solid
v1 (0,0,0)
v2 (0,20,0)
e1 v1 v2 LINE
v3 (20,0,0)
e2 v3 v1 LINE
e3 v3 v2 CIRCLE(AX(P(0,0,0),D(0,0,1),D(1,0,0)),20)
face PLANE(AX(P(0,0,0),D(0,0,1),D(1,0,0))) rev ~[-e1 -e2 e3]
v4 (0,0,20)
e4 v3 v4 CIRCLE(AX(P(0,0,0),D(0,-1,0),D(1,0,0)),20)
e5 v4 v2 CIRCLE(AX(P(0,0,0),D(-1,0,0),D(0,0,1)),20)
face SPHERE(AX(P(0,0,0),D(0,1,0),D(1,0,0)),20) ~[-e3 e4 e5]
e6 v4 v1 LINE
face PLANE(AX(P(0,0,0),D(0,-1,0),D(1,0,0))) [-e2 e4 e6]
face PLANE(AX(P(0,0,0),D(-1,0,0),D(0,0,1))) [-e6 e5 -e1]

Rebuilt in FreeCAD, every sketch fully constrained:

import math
import FreeCAD as App
import Part
import Sketcher

V = App.Vector

doc = App.newDocument("Part")
body = doc.addObject("PartDesign::Body", "Body")

# Sketch on XY plane
sketch1 = body.newObject("Sketcher::SketchObject", "Sketch")
sketch1.AttachmentSupport = (doc.getObject("XY_Plane"), [""])
sketch1.MapMode = "FlatFace"
sketch1.addGeometry([
    Part.LineSegment(V(0, 0, 0), V(20, 0, 0)),
    Part.ArcOfCircle(Part.Circle(V(0, 0, 0), V(0, 0, 1), 20), math.radians(0), math.radians(90)),
    Part.LineSegment(V(0, 20, 0), V(0, 0, 0)),
], False)
sketch1.addConstraint([
    Sketcher.Constraint("Coincident", 0, 2, 1, 1),
    Sketcher.Constraint("Coincident", 1, 2, 2, 1),
    Sketcher.Constraint("Coincident", 2, 2, 0, 1),
    Sketcher.Constraint("Horizontal", 0),
    Sketcher.Constraint("Vertical", 2),
    Sketcher.Constraint("Coincident", 1, 3, -1, 1),
    Sketcher.Constraint("Coincident", 2, 2, -1, 1),
    Sketcher.Constraint("Radius", 1, 20.0),
])
revolution = body.newObject("PartDesign::Revolution", "Revolution")
revolution.Profile = sketch1
revolution.ReferenceAxis = (sketch1, ["V_Axis"])
revolution.Angle = 90
revolution.Reversed = True

doc.recompute()
